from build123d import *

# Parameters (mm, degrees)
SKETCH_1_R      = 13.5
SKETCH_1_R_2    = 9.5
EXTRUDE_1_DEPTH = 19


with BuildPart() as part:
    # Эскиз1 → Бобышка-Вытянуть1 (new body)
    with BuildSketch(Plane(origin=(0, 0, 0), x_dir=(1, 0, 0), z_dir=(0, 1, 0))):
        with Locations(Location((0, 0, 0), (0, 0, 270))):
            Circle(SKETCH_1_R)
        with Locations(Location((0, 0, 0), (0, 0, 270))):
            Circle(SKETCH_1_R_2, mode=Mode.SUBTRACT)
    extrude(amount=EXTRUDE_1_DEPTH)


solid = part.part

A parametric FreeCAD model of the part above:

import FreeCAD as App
import Part
import Sketcher

doc = App.newDocument("Part")
params = doc.addObject("Spreadsheet::Sheet", "Params")
for row, (alias, value) in enumerate([
    ("sketch1_diameter", "27 mm"),
    ("sketch1_diameter2", "19 mm"),
    ("pad1_length", "19 mm"),
], start=1):
    params.set(f"A{row}", alias)
    params.set(f"B{row}", "=" + value)
    params.setAlias(f"B{row}", alias)

body = doc.addObject("PartDesign::Body", "Body")

sketch1 = doc.addObject("Sketcher::SketchObject", "Sketch")
body.addObject(sketch1)
sketch1.AttachmentSupport = (doc.XZ_Plane, [""])
sketch1.MapMode = "FlatFace"
sketch1.addGeometry([
    Part.Circle(App.Vector(0, 0, 0), App.Vector(0, 0, 1), 14),
    Part.Circle(App.Vector(0, 0, 0), App.Vector(0, 0, 1), 10),
], False)
sketch1.addConstraint([
    Sketcher.Constraint("Coincident", 0, 3, -1, 1),
    Sketcher.Constraint("Coincident", 1, 3, -1, 1),
    Sketcher.Constraint("Diameter", 0, 27.0),
    Sketcher.Constraint("Diameter", 1, 19.0),
])
sketch1.setExpression("Constraints[2]", "Params.sketch1_diameter")
sketch1.setExpression("Constraints[3]", "Params.sketch1_diameter2")
pad1 = doc.addObject("PartDesign::Pad", "Pad")
body.addObject(pad1)
pad1.Profile = sketch1
pad1.setExpression("Length", "Params.pad1_length")
pad1.Reversed = True

doc.recompute()
